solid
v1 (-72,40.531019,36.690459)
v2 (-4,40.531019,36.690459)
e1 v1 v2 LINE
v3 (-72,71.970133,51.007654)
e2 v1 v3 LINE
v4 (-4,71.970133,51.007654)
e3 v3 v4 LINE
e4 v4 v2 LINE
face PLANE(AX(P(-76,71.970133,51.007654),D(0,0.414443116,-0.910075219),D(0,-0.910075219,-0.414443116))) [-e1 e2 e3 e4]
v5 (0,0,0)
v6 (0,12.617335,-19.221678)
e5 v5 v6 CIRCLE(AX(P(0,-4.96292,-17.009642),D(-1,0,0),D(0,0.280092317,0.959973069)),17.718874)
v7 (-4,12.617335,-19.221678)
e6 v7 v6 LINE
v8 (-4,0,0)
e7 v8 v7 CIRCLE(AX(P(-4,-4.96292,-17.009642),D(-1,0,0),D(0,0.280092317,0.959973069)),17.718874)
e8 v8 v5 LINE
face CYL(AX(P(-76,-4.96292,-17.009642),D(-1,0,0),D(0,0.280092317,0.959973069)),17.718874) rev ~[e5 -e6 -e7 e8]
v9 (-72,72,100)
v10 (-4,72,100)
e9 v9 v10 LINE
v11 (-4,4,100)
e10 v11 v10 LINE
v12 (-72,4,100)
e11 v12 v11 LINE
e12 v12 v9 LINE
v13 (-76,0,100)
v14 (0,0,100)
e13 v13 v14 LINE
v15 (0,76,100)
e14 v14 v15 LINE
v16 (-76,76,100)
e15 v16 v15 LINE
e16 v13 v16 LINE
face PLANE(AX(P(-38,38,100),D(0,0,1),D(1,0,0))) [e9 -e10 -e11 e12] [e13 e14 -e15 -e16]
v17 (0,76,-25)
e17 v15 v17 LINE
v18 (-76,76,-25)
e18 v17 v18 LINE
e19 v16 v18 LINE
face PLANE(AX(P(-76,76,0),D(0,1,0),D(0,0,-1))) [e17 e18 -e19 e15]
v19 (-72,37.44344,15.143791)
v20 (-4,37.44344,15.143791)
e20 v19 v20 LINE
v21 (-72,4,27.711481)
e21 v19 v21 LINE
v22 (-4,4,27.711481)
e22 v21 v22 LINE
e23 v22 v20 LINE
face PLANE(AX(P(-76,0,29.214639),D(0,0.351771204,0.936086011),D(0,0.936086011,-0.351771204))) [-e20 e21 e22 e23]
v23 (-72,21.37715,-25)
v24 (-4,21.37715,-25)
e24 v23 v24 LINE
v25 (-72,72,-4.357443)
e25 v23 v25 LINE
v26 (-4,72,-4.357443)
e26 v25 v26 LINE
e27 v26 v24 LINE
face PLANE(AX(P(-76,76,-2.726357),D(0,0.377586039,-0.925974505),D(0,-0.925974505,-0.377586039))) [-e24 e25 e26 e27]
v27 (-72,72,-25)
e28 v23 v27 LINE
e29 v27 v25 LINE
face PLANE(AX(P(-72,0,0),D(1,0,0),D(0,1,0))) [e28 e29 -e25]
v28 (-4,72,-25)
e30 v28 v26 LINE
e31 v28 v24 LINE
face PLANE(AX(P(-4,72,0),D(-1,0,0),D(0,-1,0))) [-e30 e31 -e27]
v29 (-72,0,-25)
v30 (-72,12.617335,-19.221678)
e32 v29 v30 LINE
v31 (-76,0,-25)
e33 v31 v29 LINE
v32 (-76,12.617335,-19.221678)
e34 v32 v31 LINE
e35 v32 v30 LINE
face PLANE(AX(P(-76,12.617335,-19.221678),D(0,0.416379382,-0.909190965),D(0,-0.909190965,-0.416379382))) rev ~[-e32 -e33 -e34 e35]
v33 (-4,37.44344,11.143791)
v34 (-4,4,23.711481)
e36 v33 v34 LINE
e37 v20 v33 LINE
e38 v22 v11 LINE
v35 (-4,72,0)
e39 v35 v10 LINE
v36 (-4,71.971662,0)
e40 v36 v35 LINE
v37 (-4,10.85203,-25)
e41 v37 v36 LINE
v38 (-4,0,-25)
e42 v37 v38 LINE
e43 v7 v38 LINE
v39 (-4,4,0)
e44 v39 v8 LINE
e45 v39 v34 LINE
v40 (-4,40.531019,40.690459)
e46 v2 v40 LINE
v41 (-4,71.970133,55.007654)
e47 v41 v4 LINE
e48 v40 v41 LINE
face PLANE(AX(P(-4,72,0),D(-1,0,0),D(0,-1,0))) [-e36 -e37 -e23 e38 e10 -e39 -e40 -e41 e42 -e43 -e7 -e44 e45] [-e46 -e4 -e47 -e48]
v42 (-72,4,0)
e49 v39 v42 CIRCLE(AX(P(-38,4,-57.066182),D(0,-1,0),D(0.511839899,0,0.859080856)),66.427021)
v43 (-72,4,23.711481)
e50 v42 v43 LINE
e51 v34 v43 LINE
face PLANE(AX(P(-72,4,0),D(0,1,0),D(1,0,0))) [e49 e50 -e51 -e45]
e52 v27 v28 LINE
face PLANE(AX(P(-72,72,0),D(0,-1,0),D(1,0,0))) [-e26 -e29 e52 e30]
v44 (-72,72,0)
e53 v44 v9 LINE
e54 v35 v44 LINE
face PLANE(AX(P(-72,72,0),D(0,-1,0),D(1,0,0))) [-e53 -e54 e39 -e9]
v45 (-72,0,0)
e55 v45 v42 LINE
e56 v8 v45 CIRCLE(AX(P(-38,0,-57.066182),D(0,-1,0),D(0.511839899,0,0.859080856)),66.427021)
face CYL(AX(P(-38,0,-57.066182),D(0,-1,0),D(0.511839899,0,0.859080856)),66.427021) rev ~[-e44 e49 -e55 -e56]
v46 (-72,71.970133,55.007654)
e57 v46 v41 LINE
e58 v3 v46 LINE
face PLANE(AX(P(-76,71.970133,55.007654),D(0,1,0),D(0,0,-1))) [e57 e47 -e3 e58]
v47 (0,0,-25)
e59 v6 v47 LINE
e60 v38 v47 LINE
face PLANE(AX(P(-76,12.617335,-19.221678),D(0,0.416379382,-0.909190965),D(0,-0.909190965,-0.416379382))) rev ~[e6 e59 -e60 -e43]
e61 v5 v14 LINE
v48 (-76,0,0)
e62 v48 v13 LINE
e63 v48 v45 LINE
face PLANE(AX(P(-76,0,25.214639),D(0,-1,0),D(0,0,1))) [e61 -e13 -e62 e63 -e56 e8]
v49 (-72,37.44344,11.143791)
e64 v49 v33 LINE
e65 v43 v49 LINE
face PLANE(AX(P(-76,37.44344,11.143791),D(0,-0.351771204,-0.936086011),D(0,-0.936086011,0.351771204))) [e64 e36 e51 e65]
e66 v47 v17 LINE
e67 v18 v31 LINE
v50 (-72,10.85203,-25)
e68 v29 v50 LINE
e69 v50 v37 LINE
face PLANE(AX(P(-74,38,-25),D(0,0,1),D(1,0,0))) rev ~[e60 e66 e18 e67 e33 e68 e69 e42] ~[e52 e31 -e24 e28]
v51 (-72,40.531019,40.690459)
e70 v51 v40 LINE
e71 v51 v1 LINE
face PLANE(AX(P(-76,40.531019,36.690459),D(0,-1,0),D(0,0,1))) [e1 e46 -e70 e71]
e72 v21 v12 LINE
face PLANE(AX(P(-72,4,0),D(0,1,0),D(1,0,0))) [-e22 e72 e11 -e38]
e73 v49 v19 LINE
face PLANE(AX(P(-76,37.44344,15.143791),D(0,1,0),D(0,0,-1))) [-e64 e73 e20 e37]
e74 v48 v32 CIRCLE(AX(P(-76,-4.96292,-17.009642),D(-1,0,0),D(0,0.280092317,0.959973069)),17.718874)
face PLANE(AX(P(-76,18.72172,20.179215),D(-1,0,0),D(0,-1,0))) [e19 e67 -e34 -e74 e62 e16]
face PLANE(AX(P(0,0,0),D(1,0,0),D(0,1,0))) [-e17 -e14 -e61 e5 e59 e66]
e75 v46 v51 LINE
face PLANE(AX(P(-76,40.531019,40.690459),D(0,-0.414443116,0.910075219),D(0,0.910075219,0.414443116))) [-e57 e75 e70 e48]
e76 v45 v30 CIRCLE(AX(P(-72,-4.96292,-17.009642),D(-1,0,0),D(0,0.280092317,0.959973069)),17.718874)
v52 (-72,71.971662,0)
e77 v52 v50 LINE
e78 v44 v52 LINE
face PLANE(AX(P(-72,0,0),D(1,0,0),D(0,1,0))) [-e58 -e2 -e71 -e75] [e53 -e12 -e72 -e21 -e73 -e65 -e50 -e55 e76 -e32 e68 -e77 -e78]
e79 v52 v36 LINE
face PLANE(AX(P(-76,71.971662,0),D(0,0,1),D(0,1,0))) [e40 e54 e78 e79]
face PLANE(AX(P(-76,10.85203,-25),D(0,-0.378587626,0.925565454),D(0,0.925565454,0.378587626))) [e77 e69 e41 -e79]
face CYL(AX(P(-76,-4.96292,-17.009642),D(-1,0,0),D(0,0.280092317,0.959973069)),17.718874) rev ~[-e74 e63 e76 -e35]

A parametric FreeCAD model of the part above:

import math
import FreeCAD as App
import Part
import Sketcher


def add_polygon(sketch, points):
    """Adds a closed chain of lines whose ends are joined by coincident constraints."""
    first, n = sketch.GeometryCount, len(points)
    for a, b in zip(points, points[1:] + points[:1]):
        sketch.addGeometry(Part.LineSegment(App.Vector(*a, 0), App.Vector(*b, 0)), False)
    for i in range(n):
        sketch.addConstraint(Sketcher.Constraint("Coincident", first + i, 2, first + (i + 1) % n, 1))

doc = App.newDocument("Part")
body = doc.addObject("PartDesign::Body", "Body")

sketch1 = body.newObject("Sketcher::SketchObject", "Sketch")
sketch1.AttachmentSupport = (doc.getObject("XY_Plane"), [""])
sketch1.MapMode = "FlatFace"
add_polygon(sketch1, [(-76, 76), (-76, 0), (0, 0), (0, 76)])
add_polygon(sketch1, [(-4, 4), (-72, 4), (-72, 72), (-4, 72)])
sketch1.addConstraint(Sketcher.Constraint("Vertical", 0))
sketch1.addConstraint(Sketcher.Constraint("Horizontal", 1))
sketch1.addConstraint(Sketcher.Constraint("Vertical", 2))
sketch1.addConstraint(Sketcher.Constraint("Horizontal", 3))
sketch1.addConstraint(Sketcher.Constraint("Horizontal", 4))
sketch1.addConstraint(Sketcher.Constraint("Vertical", 5))
sketch1.addConstraint(Sketcher.Constraint("Horizontal", 6))
sketch1.addConstraint(Sketcher.Constraint("Vertical", 7))
sketch1.addConstraint(Sketcher.Constraint("Coincident", 1, 2, -1, 1))
sketch1.addConstraint(Sketcher.Constraint("Equal", 3, 0))
sketch1.addConstraint(Sketcher.Constraint("Equal", 6, 5))
sketch1.addConstraint(Sketcher.Constraint("DistanceX", 1, 1, 1, 2, 76.0))
sketch1.addConstraint(Sketcher.Constraint("DistanceX", 4, 2, 4, 1, 68.0))
sketch1.addConstraint(Sketcher.Constraint("DistanceX", 4, 2, -1, 1, 72.0))
sketch1.addConstraint(Sketcher.Constraint("DistanceY", -1, 1, 4, 2, 4.0))
pad1 = body.newObject("PartDesign::Pad", "Pad")
pad1.Profile = sketch1
pad1.Length = 100

sketch2 = body.newObject("Sketcher::SketchObject", "Sketch001")
sketch2.AttachmentSupport = (doc.getObject("XY_Plane"), [""])
sketch2.MapMode = "FlatFace"
add_polygon(sketch2, [(-76, 76), (-76, 0), (-72, 0), (-72, 72), (-4, 72), (-4, 0), (0, 0), (0, 76)])
sketch2.addConstraint(Sketcher.Constraint("Vertical", 0))
sketch2.addConstraint(Sketcher.Constraint("Horizontal", 1))
sketch2.addConstraint(Sketcher.Constraint("Vertical", 2))
sketch2.addConstraint(Sketcher.Constraint("Horizontal", 3))
sketch2.addConstraint(Sketcher.Constraint("Vertical", 4))
sketch2.addConstraint(Sketcher.Constraint("Horizontal", 5))
sketch2.addConstraint(Sketcher.Constraint("Vertical", 6))
sketch2.addConstraint(Sketcher.Constraint("Horizontal", 7))
sketch2.addConstraint(Sketcher.Constraint("Coincident", 5, 2, -1, 1))
sketch2.addConstraint(Sketcher.Constraint("PointOnObject", 0, 2, -1))
sketch2.addConstraint(Sketcher.Constraint("Equal", 1, 5))
sketch2.addConstraint(Sketcher.Constraint("Equal", 7, 0))
sketch2.addConstraint(Sketcher.Constraint("DistanceX", 1, 1, 1, 2, 4.0))
sketch2.addConstraint(Sketcher.Constraint("DistanceX", 3, 1, 3, 2, 68.0))
sketch2.addConstraint(Sketcher.Constraint("DistanceY", 2, 1, 2, 2, 72.0))
pad2 = body.newObject("PartDesign::Pad", "Pad001")
pad2.Profile = sketch2
pad2.Length = 25
pad2.Reversed = True

sketch3 = body.newObject("Sketcher::SketchObject", "Sketch002")
sketch3.AttachmentSupport = (doc.getObject("YZ_Plane"), [""])
sketch3.MapMode = "FlatFace"
sketch3.AttachmentOffset = App.Placement(App.Vector(0, 0, -76), App.Rotation())
add_polygon(sketch3, [(10.85203, -25), (71.971662, 0), (76, 0), (76, -2.726357), (21.37715, -25)])
sketch3.addConstraint(Sketcher.Constraint("Horizontal", 1))
sketch3.addConstraint(Sketcher.Constraint("Vertical", 2))
sketch3.addConstraint(Sketcher.Constraint("Horizontal", 4))
sketch3.addConstraint(Sketcher.Constraint("PointOnObject", 0, 2, -1))
sketch3.addConstraint(Sketcher.Constraint("DistanceX", -1, 1, 1, 2, 76.0))
sketch3.addConstraint(Sketcher.Constraint("DistanceY", 3, 2, -1, 1, 25.0))
sketch3.addConstraint(Sketcher.Constraint("DistanceX", 1, 1, 1, 2, 4.028338))
sketch3.addConstraint(Sketcher.Constraint("DistanceX", 4, 2, 4, 1, 10.52512))
sketch3.addConstraint(Sketcher.Constraint("Distance", 0, 66.034911))
sketch3.addConstraint(Sketcher.Constraint("DistanceY", 2, 2, 2, 1, 2.726357))
pad3 = body.newObject("PartDesign::Pad", "Pad002")
pad3.Profile = sketch3
pad3.Type = "UpToLast"

sketch4 = body.newObject("Sketcher::SketchObject", "Sketch003")
sketch4.AttachmentSupport = (doc.getObject("YZ_Plane"), [""])
sketch4.MapMode = "FlatFace"
sketch4.AttachmentOffset = App.Placement(App.Vector(0, 0, -76), App.Rotation())
sketch4.addGeometry(Part.LineSegment(App.Vector(0, -25, 0), App.Vector(0, 0, 0)), False)
sketch4.addGeometry(Part.ArcOfCircle(Part.Circle(App.Vector(-4.96292, -17.009642, 0), App.Vector(0, 0, 1), 17.718874), math.radians(-7.171556), math.radians(73.734285)), False)
sketch4.addGeometry(Part.LineSegment(App.Vector(12.617335, -19.221678, 0), App.Vector(0, -25, 0)), False)
sketch4.addConstraint(Sketcher.Constraint("Coincident", 0, 2, 1, 2))
sketch4.addConstraint(Sketcher.Constraint("Coincident", 1, 1, 2, 1))
sketch4.addConstraint(Sketcher.Constraint("Coincident", 2, 2, 0, 1))
sketch4.addConstraint(Sketcher.Constraint("Vertical", 0))
sketch4.addConstraint(Sketcher.Constraint("Coincident", 0, 2, -1, 1))
sketch4.addConstraint(Sketcher.Constraint("DistanceY", 0, 1, 0, 2, 25.0))
sketch4.addConstraint(Sketcher.Constraint("Radius", 1, 17.718874))
sketch4.addConstraint(Sketcher.Constraint("Distance", 2, 13.877541))
sketch4.addConstraint(Sketcher.Constraint("DistanceX", 1, 3, -1, 1, 4.96292))
pocket1 = body.newObject("PartDesign::Pocket", "Pocket")
pocket1.Profile = sketch4
pocket1.Type = "ThroughAll"
pocket1.Reversed = True

sketch5 = body.newObject("Sketcher::SketchObject", "Sketch004")
sketch5.AttachmentSupport = (doc.getObject("XZ_Plane"), [""])
sketch5.MapMode = "FlatFace"
sketch5.addGeometry(Part.LineSegment(App.Vector(-72, 0, 0), App.Vector(-4, 0, 0)), False)
sketch5.addGeometry(Part.ArcOfCircle(Part.Circle(App.Vector(-38, -57.066182, 0), App.Vector(0, 0, 1), 66.427021), math.radians(59.213538), math.radians(120.786462)), False)
sketch5.addConstraint(Sketcher.Constraint("Coincident", 0, 1, 1, 2))
sketch5.addConstraint(Sketcher.Constraint("Coincident", 1, 1, 0, 2))
sketch5.addConstraint(Sketcher.Constraint("Horizontal", 0))
sketch5.addConstraint(Sketcher.Constraint("PointOnObject", 0, 1, -1))
sketch5.addConstraint(Sketcher.Constraint("DistanceX", 0, 1, 0, 2, 68.0))
sketch5.addConstraint(Sketcher.Constraint("DistanceX", 1, 3, -1, 1, 38.0))
sketch5.addConstraint(Sketcher.Constraint("Radius", 1, 66.427021))
pocket2 = body.newObject("PartDesign::Pocket", "Pocket001")
pocket2.Profile = sketch5
pocket2.Length = 25

sketch6 = body.newObject("Sketcher::SketchObject", "Sketch005")
sketch6.AttachmentSupport = (doc.getObject("YZ_Plane"), [""])
sketch6.MapMode = "FlatFace"
sketch6.AttachmentOffset = App.Placement(App.Vector(0, 0, -76), App.Rotation())
add_polygon(sketch6, [(37.44344, 15.143791), (37.44344, 11.143791), (0, 25.214639), (0, 29.214639)])
add_polygon(sketch6, [(71.970133, 51.007654), (40.531019, 36.690459), (40.531019, 40.690459), (71.970133, 55.007654)])
sketch6.addConstraint(Sketcher.Constraint("Vertical", 0))
sketch6.addConstraint(Sketcher.Constraint("Vertical", 2))
sketch6.addConstraint(Sketcher.Constraint("Vertical", 5))
sketch6.addConstraint(Sketcher.Constraint("Vertical", 7))
sketch6.addConstraint(Sketcher.Constraint("PointOnObject", 1, 2, -2))
sketch6.addConstraint(Sketcher.Constraint("Parallel", 1, 3))
sketch6.addConstraint(Sketcher.Constraint("Parallel", 4, 6))
sketch6.addConstraint(Sketcher.Constraint("Equal", 2, 5))
sketch6.addConstraint(Sketcher.Constraint("DistanceY", 0, 2, 0, 1, 4.0))
sketch6.addConstraint(Sketcher.Constraint("Distance", 1, 40.0))
sketch6.addConstraint(Sketcher.Constraint("Distance", 4, 34.545621))
sketch6.addConstraint(Sketcher.Constraint("DistanceX", -1, 1, 0, 2, 37.44344))
sketch6.addConstraint(Sketcher.Constraint("DistanceY", -1, 1, 0, 2, 11.143791))
sketch6.addConstraint(Sketcher.Constraint("DistanceX", -1, 1, 4, 2, 40.531019))
sketch6.addConstraint(Sketcher.Constraint("DistanceY", -1, 1, 4, 2, 36.690459))
sketch6.addConstraint(Sketcher.Constraint("DistanceX", -1, 1, 6, 2, 71.970133))
pad4 = body.newObject("PartDesign::Pad", "Pad003")
pad4.Profile = sketch6
pad4.Type = "UpToLast"

doc.recompute()
